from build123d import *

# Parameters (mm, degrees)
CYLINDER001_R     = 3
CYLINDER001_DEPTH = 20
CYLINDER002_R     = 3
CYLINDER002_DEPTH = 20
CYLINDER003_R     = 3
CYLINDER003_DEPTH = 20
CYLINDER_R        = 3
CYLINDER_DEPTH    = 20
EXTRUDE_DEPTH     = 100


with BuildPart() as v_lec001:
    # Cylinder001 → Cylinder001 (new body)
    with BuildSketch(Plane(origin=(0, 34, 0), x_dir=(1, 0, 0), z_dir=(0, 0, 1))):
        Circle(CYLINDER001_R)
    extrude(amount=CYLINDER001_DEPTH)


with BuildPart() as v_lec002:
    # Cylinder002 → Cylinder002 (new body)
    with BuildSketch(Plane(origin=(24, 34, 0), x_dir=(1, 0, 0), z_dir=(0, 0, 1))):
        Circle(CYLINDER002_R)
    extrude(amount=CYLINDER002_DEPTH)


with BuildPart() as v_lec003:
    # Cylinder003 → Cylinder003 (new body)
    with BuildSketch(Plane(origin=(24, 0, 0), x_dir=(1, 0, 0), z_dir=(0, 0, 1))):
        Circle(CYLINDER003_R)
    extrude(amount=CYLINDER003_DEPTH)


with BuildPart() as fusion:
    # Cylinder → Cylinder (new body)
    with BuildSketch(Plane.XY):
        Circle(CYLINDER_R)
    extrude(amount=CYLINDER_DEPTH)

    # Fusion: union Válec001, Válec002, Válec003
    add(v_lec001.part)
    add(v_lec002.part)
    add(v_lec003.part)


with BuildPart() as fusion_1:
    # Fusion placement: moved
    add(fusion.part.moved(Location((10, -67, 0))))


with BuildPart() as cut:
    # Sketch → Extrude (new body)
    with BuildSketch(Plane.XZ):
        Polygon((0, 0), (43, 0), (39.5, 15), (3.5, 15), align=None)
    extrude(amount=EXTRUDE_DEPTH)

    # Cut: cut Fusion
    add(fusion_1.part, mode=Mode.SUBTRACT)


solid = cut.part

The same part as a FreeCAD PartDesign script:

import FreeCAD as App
import Part
import Sketcher

V = App.Vector


def add_polygon(sketch, points):
    """Adds a closed chain of lines whose ends are joined by coincident constraints."""
    first, n = sketch.GeometryCount, len(points)
    for a, b in zip(points, points[1:] + points[:1]):
        sketch.addGeometry(Part.LineSegment(App.Vector(*a, 0), App.Vector(*b, 0)), False)
    for i in range(n):
        sketch.addConstraint(Sketcher.Constraint("Coincident", first + i, 2, first + (i + 1) % n, 1))

doc = App.newDocument("Part")
body = doc.addObject("PartDesign::Body", "Body")

# Sketch on XY plane
sketch1 = body.newObject("Sketcher::SketchObject", "Sketch")
sketch1.AttachmentSupport = (doc.getObject("XY_Plane"), [""])
sketch1.MapMode = "FlatFace"
sketch1.addGeometry(Part.Circle(V(0, 34, 0), V(0, 0, 1), 3), False)
sketch1.addConstraint([
    Sketcher.Constraint("PointOnObject", 0, 3, -2),
    Sketcher.Constraint("Diameter", 0, 6.0),
    Sketcher.Constraint("DistanceY", -1, 1, 0, 3, 34.0),
])
pad1 = body.newObject("PartDesign::Pad", "Pad")
pad1.Profile = sketch1
pad1.Length = 20
body2 = doc.addObject("PartDesign::Body", "Body001")

# Sketch on XY plane
sketch2 = body2.newObject("Sketcher::SketchObject", "Sketch001")
sketch2.AttachmentSupport = (doc.getObject("XY_Plane001"), [""])
sketch2.MapMode = "FlatFace"
sketch2.addGeometry(Part.Circle(V(24, 34, 0), V(0, 0, 1), 3), False)
sketch2.addConstraint([
    Sketcher.Constraint("Diameter", 0, 6.0),
    Sketcher.Constraint("DistanceX", -1, 1, 0, 3, 24.0),
    Sketcher.Constraint("DistanceY", -1, 1, 0, 3, 34.0),
])
pad2 = body2.newObject("PartDesign::Pad", "Pad001")
pad2.Profile = sketch2
pad2.Length = 20
body3 = doc.addObject("PartDesign::Body", "Body002")

# Sketch on XY plane
sketch3 = body3.newObject("Sketcher::SketchObject", "Sketch002")
sketch3.AttachmentSupport = (doc.getObject("XY_Plane002"), [""])
sketch3.MapMode = "FlatFace"
sketch3.addGeometry(Part.Circle(V(24, 0, 0), V(0, 0, 1), 3), False)
sketch3.addConstraint([
    Sketcher.Constraint("PointOnObject", 0, 3, -1),
    Sketcher.Constraint("Diameter", 0, 6.0),
    Sketcher.Constraint("DistanceX", -1, 1, 0, 3, 24.0),
])
pad3 = body3.newObject("PartDesign::Pad", "Pad002")
pad3.Profile = sketch3
pad3.Length = 20
body4 = doc.addObject("PartDesign::Body", "Body003")
body4.AllowCompound = True

# Sketch on XY plane
sketch4 = body4.newObject("Sketcher::SketchObject", "Sketch003")
sketch4.AttachmentSupport = (doc.getObject("XY_Plane003"), [""])
sketch4.MapMode = "FlatFace"
sketch4.addGeometry(Part.Circle(V(0, 0, 0), V(0, 0, 1), 3), False)
sketch4.addConstraint([
    Sketcher.Constraint("Coincident", 0, 3, -1, 1),
    Sketcher.Constraint("Diameter", 0, 6.0),
])
pad4 = body4.newObject("PartDesign::Pad", "Pad003")
pad4.Profile = sketch4
pad4.Length = 20
doc.recompute()

boolean = body4.newObject("PartDesign::Boolean", "Boolean")
boolean.Type = "Fuse"
boolean.addObjects([body])
doc.recompute()

boolean2 = body4.newObject("PartDesign::Boolean", "Boolean001")
boolean2.Type = "Fuse"
boolean2.addObjects([body2])
doc.recompute()

boolean3 = body4.newObject("PartDesign::Boolean", "Boolean002")
boolean3.Type = "Fuse"
boolean3.addObjects([body3])
body5 = doc.addObject("PartDesign::Body", "Body004")
body5.AllowCompound = True
doc.recompute()

body4.Placement = App.Placement(V(10, -67, 0), App.Rotation(V(0, 0, 1), 0))
boolean4 = body5.newObject("PartDesign::Boolean", "Boolean003")
boolean4.Type = "Fuse"
boolean4.addObjects([body4])
body6 = doc.addObject("PartDesign::Body", "Body005")

# Sketch on XZ plane
sketch5 = body6.newObject("Sketcher::SketchObject", "Sketch004")
sketch5.AttachmentSupport = (doc.getObject("XZ_Plane005"), [""])
sketch5.MapMode = "FlatFace"
add_polygon(sketch5, [(0, 0), (43, 0), (39.5, 15), (3.5, 15)])  # lines 0-3
sketch5.addConstraint([
    Sketcher.Constraint("Horizontal", 0),
    Sketcher.Constraint("Horizontal", 2),
    Sketcher.Constraint("Coincident", 3, 2, -1, 1),
    Sketcher.Constraint("Equal", 1, 3),
    Sketcher.Constraint("DistanceX", 0, 1, 0, 2, 43.0),
    Sketcher.Constraint("DistanceX", 2, 2, 2, 1, 36.0),
    Sketcher.Constraint("DistanceY", -1, 1, 1, 2, 15.0),
])
pad5 = body6.newObject("PartDesign::Pad", "Pad004")
pad5.Profile = sketch5
pad5.Length = 100
doc.recompute()

boolean5 = body6.newObject("PartDesign::Boolean", "Boolean004")
boolean5.Type = "Cut"
boolean5.addObjects([body5])

doc.recompute()
